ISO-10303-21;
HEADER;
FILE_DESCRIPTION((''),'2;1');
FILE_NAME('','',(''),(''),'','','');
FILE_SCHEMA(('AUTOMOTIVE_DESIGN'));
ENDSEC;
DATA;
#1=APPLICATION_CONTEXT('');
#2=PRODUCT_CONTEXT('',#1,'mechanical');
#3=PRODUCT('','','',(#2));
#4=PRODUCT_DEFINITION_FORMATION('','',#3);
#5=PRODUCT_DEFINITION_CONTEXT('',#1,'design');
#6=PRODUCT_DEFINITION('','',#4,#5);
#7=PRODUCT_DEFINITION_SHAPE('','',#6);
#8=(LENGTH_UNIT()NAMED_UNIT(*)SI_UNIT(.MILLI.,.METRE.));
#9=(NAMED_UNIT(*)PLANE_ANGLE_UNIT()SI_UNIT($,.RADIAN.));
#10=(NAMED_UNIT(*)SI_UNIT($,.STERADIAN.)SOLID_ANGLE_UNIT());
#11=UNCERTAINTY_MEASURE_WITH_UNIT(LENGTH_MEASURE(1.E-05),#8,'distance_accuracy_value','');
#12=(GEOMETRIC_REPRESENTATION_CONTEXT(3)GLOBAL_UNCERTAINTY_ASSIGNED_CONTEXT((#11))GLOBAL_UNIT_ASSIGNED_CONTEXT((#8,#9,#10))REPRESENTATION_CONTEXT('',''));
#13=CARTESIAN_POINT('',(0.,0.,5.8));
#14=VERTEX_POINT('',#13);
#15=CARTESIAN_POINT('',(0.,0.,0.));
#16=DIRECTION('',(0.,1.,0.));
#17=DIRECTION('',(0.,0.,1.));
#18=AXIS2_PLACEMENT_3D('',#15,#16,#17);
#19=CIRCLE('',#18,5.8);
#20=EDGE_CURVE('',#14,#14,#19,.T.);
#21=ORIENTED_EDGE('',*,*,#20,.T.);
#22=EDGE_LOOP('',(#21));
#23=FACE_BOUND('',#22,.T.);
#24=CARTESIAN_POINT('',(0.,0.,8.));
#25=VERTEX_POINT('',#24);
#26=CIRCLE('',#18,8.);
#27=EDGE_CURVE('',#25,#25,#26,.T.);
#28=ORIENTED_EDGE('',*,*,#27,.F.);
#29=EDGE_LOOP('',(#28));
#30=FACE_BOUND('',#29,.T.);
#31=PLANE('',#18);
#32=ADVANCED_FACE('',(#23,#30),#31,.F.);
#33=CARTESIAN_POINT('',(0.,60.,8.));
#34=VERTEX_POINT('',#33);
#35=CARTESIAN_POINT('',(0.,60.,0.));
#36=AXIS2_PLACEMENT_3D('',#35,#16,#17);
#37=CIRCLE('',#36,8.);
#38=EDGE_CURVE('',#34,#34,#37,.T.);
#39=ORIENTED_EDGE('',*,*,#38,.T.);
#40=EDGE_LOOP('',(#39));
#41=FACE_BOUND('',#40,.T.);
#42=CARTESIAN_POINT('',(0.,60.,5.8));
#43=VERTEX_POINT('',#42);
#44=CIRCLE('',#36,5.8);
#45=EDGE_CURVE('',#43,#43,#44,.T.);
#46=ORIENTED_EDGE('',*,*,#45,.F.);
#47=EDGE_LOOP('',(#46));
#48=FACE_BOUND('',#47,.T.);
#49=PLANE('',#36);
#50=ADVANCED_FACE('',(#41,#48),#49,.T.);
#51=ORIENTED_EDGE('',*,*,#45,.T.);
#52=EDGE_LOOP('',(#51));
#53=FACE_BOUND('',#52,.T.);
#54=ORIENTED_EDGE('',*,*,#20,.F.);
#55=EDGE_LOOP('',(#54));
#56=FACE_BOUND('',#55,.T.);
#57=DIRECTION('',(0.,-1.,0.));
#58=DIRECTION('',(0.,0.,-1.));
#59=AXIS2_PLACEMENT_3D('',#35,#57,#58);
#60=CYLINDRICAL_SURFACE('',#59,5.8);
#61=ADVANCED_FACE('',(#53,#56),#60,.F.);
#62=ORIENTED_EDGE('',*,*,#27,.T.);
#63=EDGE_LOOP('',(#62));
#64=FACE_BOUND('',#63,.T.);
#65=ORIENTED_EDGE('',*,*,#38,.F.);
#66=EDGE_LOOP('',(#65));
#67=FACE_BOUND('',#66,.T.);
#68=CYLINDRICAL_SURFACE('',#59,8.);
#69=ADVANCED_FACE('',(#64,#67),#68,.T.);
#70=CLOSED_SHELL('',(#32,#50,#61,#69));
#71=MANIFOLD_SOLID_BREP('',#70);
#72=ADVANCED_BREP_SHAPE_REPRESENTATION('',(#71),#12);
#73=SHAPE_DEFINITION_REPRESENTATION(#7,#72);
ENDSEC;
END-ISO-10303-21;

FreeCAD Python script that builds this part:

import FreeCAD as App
import Part
import Sketcher
from FreeCAD import Vector

doc = App.newDocument("Part")
body = doc.addObject("PartDesign::Body", "Body")

sketch1 = body.newObject("Sketcher::SketchObject", "Sketch")
sketch1.AttachmentSupport = (doc.getObject("XZ_Plane"), [""])
sketch1.MapMode = "FlatFace"
sketch1.addGeometry(Part.Circle(Vector(0, 0, 0), Vector(0, 0, 1), 8), False)
sketch1.addGeometry(Part.Circle(Vector(0, 0, 0), Vector(0, 0, 1), 6), False)
sketch1.addConstraint(Sketcher.Constraint("Coincident", 0, 3, -1, 1))
sketch1.addConstraint(Sketcher.Constraint("Coincident", 1, 3, -1, 1))
sketch1.addConstraint(Sketcher.Constraint("Diameter", 0, 16.0))
sketch1.addConstraint(Sketcher.Constraint("Diameter", 1, 11.6))
pad1 = body.newObject("PartDesign::Pad", "Pad")
pad1.Profile = sketch1
pad1.Length = 60
pad1.Reversed = True

doc.recompute()
